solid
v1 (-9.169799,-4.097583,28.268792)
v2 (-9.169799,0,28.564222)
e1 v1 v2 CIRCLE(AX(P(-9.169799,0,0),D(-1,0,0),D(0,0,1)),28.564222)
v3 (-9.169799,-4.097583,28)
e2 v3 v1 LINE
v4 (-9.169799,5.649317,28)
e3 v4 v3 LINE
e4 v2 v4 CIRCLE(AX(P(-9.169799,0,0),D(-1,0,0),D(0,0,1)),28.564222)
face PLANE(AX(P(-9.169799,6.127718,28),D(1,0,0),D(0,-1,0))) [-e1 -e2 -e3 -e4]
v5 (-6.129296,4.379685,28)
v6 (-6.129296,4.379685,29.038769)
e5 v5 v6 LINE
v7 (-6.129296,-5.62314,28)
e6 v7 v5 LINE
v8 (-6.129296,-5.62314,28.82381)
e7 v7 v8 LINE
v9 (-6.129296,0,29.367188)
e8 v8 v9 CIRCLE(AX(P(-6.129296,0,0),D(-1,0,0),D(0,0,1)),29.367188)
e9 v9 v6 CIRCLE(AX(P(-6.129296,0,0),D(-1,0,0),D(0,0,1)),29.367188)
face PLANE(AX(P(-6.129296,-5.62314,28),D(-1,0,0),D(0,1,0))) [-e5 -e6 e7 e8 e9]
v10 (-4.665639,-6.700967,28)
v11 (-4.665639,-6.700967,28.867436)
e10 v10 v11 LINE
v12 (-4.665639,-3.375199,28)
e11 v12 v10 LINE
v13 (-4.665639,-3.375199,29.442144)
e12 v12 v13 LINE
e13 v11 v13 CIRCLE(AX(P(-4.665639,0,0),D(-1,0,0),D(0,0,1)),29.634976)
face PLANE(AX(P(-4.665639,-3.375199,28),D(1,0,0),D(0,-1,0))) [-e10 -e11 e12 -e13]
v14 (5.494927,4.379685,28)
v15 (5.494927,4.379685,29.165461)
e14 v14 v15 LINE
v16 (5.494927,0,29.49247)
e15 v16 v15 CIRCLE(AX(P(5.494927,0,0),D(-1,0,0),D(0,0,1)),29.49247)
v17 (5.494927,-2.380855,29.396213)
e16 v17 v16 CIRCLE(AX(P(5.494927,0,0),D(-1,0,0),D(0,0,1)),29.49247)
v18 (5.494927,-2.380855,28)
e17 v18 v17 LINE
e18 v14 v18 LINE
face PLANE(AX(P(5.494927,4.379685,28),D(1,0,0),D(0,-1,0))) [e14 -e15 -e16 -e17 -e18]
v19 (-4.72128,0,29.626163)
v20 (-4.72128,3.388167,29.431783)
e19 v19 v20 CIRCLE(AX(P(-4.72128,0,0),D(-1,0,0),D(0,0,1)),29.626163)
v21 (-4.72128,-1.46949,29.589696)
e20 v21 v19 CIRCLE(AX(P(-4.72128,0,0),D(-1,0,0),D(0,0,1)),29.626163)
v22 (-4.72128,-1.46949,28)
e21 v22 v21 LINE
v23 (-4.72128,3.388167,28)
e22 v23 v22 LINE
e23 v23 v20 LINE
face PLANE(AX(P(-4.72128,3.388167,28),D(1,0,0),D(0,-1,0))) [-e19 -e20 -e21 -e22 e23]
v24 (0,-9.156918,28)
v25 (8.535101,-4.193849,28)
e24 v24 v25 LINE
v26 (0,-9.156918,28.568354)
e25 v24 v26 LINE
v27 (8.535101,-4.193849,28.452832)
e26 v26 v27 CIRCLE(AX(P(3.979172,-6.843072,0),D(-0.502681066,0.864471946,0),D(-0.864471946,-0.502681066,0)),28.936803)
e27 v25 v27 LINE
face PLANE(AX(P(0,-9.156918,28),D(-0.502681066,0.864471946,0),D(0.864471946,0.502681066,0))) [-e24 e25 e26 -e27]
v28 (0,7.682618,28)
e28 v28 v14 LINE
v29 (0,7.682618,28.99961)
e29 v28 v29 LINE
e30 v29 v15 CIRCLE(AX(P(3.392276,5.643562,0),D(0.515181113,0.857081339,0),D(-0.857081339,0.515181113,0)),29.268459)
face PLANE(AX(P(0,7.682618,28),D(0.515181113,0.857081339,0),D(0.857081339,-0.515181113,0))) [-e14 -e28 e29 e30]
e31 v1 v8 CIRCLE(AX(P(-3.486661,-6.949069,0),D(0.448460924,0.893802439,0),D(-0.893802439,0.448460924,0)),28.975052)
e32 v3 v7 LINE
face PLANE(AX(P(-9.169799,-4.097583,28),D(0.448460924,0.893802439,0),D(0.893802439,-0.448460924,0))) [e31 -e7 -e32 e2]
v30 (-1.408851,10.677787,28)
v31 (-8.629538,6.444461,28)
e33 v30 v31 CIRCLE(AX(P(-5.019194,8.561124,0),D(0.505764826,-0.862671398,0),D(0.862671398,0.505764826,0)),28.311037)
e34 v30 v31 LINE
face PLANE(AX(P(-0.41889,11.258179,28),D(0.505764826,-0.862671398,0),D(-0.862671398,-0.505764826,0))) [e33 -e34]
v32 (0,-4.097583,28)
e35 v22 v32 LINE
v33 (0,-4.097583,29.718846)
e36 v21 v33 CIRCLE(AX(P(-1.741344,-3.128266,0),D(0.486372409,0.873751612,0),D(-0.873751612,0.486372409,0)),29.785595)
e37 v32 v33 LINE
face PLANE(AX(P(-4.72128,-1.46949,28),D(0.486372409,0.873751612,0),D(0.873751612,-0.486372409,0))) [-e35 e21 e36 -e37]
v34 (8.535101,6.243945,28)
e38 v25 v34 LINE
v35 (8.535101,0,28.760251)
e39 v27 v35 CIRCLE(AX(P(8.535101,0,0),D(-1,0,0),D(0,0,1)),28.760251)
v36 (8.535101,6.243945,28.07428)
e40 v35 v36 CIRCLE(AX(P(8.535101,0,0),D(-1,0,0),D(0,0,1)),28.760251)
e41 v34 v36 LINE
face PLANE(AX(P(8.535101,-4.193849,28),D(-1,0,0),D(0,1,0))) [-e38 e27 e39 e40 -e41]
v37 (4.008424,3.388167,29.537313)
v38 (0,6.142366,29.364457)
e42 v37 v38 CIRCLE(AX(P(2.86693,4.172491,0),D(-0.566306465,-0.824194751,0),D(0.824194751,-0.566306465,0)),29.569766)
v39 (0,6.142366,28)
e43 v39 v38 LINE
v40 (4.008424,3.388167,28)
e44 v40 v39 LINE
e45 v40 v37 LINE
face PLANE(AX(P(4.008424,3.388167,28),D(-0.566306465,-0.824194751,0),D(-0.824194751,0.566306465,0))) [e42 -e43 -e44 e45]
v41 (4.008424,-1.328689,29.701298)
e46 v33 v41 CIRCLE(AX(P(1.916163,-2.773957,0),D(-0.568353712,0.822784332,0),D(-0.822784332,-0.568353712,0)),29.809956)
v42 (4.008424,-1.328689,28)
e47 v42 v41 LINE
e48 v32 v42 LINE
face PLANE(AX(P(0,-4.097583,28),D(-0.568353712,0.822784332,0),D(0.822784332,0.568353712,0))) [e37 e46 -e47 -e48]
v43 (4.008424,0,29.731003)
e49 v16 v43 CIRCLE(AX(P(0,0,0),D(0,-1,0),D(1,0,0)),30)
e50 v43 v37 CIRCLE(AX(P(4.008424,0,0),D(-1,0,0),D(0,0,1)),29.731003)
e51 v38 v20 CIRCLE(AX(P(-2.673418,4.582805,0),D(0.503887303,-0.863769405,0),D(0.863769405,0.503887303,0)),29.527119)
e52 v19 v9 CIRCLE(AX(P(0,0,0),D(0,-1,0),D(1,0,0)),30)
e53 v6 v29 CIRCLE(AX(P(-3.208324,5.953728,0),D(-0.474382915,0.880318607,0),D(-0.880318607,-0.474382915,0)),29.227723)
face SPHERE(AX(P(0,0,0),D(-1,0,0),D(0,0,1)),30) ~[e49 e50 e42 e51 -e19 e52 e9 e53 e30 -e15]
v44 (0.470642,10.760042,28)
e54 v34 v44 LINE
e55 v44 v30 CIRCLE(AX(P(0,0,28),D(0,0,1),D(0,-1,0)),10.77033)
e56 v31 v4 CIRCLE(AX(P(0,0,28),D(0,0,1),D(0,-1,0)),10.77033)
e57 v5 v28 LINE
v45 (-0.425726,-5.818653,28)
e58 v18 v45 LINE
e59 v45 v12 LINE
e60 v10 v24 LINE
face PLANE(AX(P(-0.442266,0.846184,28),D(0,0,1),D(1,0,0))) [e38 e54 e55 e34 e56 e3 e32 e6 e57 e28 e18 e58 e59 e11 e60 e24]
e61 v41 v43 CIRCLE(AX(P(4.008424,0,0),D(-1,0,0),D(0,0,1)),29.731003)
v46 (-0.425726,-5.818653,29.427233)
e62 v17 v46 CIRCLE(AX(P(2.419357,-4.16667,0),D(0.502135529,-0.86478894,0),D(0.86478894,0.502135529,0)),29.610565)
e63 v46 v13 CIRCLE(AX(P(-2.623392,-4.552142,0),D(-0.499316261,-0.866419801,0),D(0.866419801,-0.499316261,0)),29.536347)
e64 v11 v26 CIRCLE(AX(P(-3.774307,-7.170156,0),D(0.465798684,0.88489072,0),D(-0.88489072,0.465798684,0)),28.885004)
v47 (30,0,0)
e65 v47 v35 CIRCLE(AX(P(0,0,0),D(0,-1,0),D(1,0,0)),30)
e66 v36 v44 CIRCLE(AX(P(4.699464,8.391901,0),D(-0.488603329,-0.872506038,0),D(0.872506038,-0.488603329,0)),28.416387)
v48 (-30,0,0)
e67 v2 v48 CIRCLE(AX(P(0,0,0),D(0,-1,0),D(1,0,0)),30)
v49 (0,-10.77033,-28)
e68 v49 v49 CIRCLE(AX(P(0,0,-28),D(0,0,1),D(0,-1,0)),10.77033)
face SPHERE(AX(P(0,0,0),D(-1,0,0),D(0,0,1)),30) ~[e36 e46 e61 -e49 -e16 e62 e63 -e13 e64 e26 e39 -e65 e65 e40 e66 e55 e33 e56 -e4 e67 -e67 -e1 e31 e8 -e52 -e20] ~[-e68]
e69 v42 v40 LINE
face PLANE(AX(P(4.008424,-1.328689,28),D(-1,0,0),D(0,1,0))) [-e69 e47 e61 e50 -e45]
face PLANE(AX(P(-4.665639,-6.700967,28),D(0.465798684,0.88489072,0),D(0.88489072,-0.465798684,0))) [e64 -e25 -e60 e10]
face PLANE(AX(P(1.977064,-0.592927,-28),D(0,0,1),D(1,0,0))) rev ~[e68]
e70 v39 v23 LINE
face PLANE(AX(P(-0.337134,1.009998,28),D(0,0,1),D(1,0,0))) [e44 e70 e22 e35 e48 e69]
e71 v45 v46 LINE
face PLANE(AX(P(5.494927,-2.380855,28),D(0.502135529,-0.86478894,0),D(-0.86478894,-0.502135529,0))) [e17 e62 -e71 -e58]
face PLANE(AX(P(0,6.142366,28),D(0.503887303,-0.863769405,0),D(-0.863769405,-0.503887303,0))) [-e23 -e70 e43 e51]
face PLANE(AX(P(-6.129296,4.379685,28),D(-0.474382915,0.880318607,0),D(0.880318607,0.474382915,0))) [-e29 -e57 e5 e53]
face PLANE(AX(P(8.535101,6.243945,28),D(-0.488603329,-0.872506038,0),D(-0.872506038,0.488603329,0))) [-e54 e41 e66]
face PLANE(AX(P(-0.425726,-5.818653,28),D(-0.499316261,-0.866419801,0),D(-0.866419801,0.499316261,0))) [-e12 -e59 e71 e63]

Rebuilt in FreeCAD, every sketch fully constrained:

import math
import FreeCAD as App
import Part
import Sketcher
Q = App.Units.Quantity

doc = App.newDocument("Part")
body = doc.addObject("PartDesign::Body", "Body")

sketch1 = doc.addObject("Sketcher::SketchObject", "Sketch")
body.addObject(sketch1)
sketch1.AttachmentSupport = (doc.XZ_Plane, [""])
sketch1.MapMode = "FlatFace"
sketch1.addGeometry([
    Part.LineSegment(App.Vector(-30, 0, 0), App.Vector(30, 0, 0)),
    Part.ArcOfCircle(Part.Circle(App.Vector(0, 0, 0), App.Vector(0, 0, 1), 30), math.radians(0), math.radians(180)),
], False)
sketch1.addConstraint([
    Sketcher.Constraint("Coincident", 0, 1, 1, 2),
    Sketcher.Constraint("Coincident", 1, 1, 0, 2),
    Sketcher.Constraint("Horizontal", 0),
    Sketcher.Constraint("Coincident", 1, 3, -1, 1),
    Sketcher.Constraint("PointOnObject", 0, 1, -1),
    Sketcher.Constraint("Radius", 1, Q("30 mm")),
])
revolution = doc.addObject("PartDesign::Revolution", "Revolution")
body.addObject(revolution)
revolution.Profile = sketch1
revolution.ReferenceAxis = (sketch1, ["H_Axis"])
revolution.Angle = 360

sketch2 = doc.addObject("Sketcher::SketchObject", "Sketch001")
body.addObject(sketch2)
sketch2.AttachmentSupport = (doc.XY_Plane, [""])
sketch2.MapMode = "FlatFace"
sketch2.AttachmentOffset = App.Placement(App.Vector(0, 0, 28), App.Rotation())
sketch2.addGeometry([
    Part.LineSegment(App.Vector(-9.2, 6.1, 0), App.Vector(-9.2, -4.1, 0)),
    Part.LineSegment(App.Vector(-9.2, -4.1, 0), App.Vector(-6.1, -5.6, 0)),
    Part.LineSegment(App.Vector(-6.1, -5.6, 0), App.Vector(-6.1, 4.4, 0)),
    Part.LineSegment(App.Vector(-6.1, 4.4, 0), App.Vector(0, 7.7, 0)),
    Part.LineSegment(App.Vector(0, 7.7, 0), App.Vector(5.5, 4.4, 0)),
    Part.LineSegment(App.Vector(5.5, 4.4, 0), App.Vector(5.5, -2.4, 0)),
    Part.LineSegment(App.Vector(5.5, -2.4, 0), App.Vector(-0.4, -5.8, 0)),
    Part.LineSegment(App.Vector(-0.4, -5.8, 0), App.Vector(-4.7, -3.4, 0)),
    Part.LineSegment(App.Vector(-4.7, -3.4, 0), App.Vector(-4.7, -6.7, 0)),
    Part.LineSegment(App.Vector(-4.7, -6.7, 0), App.Vector(0, -9.2, 0)),
    Part.LineSegment(App.Vector(0, -9.2, 0), App.Vector(8.5, -4.2, 0)),
    Part.LineSegment(App.Vector(8.5, -4.2, 0), App.Vector(8.5, 6.2, 0)),
    Part.LineSegment(App.Vector(8.5, 6.2, 0), App.Vector(-0.4, 11.3, 0)),
    Part.LineSegment(App.Vector(-0.4, 11.3, 0), App.Vector(-9.2, 6.1, 0)),
    Part.LineSegment(App.Vector(-4.7, 3.4, 0), App.Vector(-4.7, -1.5, 0)),
    Part.LineSegment(App.Vector(-4.7, -1.5, 0), App.Vector(0, -4.1, 0)),
    Part.LineSegment(App.Vector(0, -4.1, 0), App.Vector(4, -1.3, 0)),
    Part.LineSegment(App.Vector(4, -1.3, 0), App.Vector(4, 3.4, 0)),
    Part.LineSegment(App.Vector(4, 3.4, 0), App.Vector(0, 6.1, 0)),
    Part.LineSegment(App.Vector(0, 6.1, 0), App.Vector(-4.7, 3.4, 0)),
], False)
sketch2.addConstraint([
    Sketcher.Constraint("Coincident", 0, 2, 1, 1),
    Sketcher.Constraint("Coincident", 1, 2, 2, 1),
    Sketcher.Constraint("Coincident", 2, 2, 3, 1),
    Sketcher.Constraint("Coincident", 3, 2, 4, 1),
    Sketcher.Constraint("Coincident", 4, 2, 5, 1),
    Sketcher.Constraint("Coincident", 5, 2, 6, 1),
    Sketcher.Constraint("Coincident", 6, 2, 7, 1),
    Sketcher.Constraint("Coincident", 7, 2, 8, 1),
    Sketcher.Constraint("Coincident", 8, 2, 9, 1),
    Sketcher.Constraint("Coincident", 9, 2, 10, 1),
    Sketcher.Constraint("Coincident", 10, 2, 11, 1),
    Sketcher.Constraint("Coincident", 11, 2, 12, 1),
    Sketcher.Constraint("Coincident", 12, 2, 13, 1),
    Sketcher.Constraint("Coincident", 13, 2, 0, 1),
    Sketcher.Constraint("Coincident", 14, 2, 15, 1),
    Sketcher.Constraint("Coincident", 15, 2, 16, 1),
    Sketcher.Constraint("Coincident", 16, 2, 17, 1),
    Sketcher.Constraint("Coincident", 17, 2, 18, 1),
    Sketcher.Constraint("Coincident", 18, 2, 19, 1),
    Sketcher.Constraint("Coincident", 19, 2, 14, 1),
    Sketcher.Constraint("Vertical", 0),
    Sketcher.Constraint("Vertical", 2),
    Sketcher.Constraint("Vertical", 5),
    Sketcher.Constraint("Vertical", 8),
    Sketcher.Constraint("Vertical", 11),
    Sketcher.Constraint("Vertical", 14),
    Sketcher.Constraint("Vertical", 17),
    Sketcher.Constraint("PointOnObject", 3, 2, -2),
    Sketcher.Constraint("PointOnObject", 9, 2, -2),
    Sketcher.Constraint("PointOnObject", 15, 2, -2),
    Sketcher.Constraint("PointOnObject", 18, 2, -2),
    Sketcher.Constraint("Horizontal", 2, 2, 4, 2),
    Sketcher.Constraint("Horizontal", 0, 2, 15, 2),
    Sketcher.Constraint("Horizontal", 17, 2, 19, 2),
    Sketcher.Constraint("DistanceY", 0, 2, 0, 1, Q("10.225301 mm")),
    Sketcher.Constraint("Distance", 7, Q("4.893601 mm")),
    Sketcher.Constraint("DistanceY", 5, 2, 5, 1, Q("6.76054 mm")),
    Sketcher.Constraint("DistanceY", 8, 2, 8, 1, Q("3.325768 mm")),
    Sketcher.Constraint("DistanceX", 0, 2, -1, 1, Q("9.169799 mm")),
    Sketcher.Constraint("DistanceY", 7, 2, -1, 1, Q("3.375199 mm")),
    Sketcher.Constraint("DistanceX", -1, 1, 10, 2, Q("8.535101 mm")),
    Sketcher.Constraint("DistanceY", 0, 2, 3, 2, Q("11.780201 mm")),
    Sketcher.Constraint("DistanceY", 6, 2, 5, 2, Q("3.437798 mm")),
    Sketcher.Constraint("DistanceY", 5, 2, 11, 2, Q("8.6248 mm")),
    Sketcher.Constraint("DistanceY", 17, 2, 18, 2, Q("2.754199 mm")),
    Sketcher.Constraint("Distance", 1, Q("3.401762 mm")),
    Sketcher.Constraint("Distance", 3, Q("6.962589 mm")),
    Sketcher.Constraint("Distance", 9, Q("5.272559 mm")),
    Sketcher.Constraint("Distance", 16, Q("4.87178 mm")),
    Sketcher.Constraint("DistanceY", 2, 1, 2, 2, Q("10.002825 mm")),
    Sketcher.Constraint("DistanceY", 11, 1, 11, 2, Q("10.437794 mm")),
    Sketcher.Constraint("DistanceY", 14, 2, 14, 1, Q("4.857657 mm")),
    Sketcher.Constraint("DistanceY", 17, 1, 17, 2, Q("4.716856 mm")),
    Sketcher.Constraint("DistanceY", 1, 2, -1, 1, Q("5.62314 mm")),
    Sketcher.Constraint("DistanceX", 7, 2, -1, 1, Q("4.665639 mm")),
    Sketcher.Constraint("DistanceX", 12, 2, -1, 1, Q("0.41889 mm")),
    Sketcher.Constraint("DistanceY", -1, 1, 12, 2, Q("11.258179 mm")),
    Sketcher.Constraint("DistanceX", 14, 2, -1, 1, Q("4.72128 mm")),
    Sketcher.Constraint("DistanceY", 14, 2, -1, 1, Q("1.46949 mm")),
    Sketcher.Constraint("Distance", 4, Q("6.411208 mm")),
])
pocket1 = doc.addObject("PartDesign::Pocket", "Pocket")
body.addObject(pocket1)
pocket1.Profile = sketch2
pocket1.Length = 22
pocket1.Reversed = True

sketch3 = doc.addObject("Sketcher::SketchObject", "Sketch002")
body.addObject(sketch3)
sketch3.AttachmentSupport = (doc.XY_Plane, [""])
sketch3.MapMode = "FlatFace"
sketch3.AttachmentOffset = App.Placement(App.Vector(0, 0, -28), App.Rotation())
sketch3.addGeometry([
    Part.LineSegment(App.Vector(-28, 29, 0), App.Vector(-28, -31, 0)),
    Part.LineSegment(App.Vector(-28, -31, 0), App.Vector(32, -31, 0)),
    Part.LineSegment(App.Vector(32, -31, 0), App.Vector(32, 29, 0)),
    Part.LineSegment(App.Vector(32, 29, 0), App.Vector(-28, 29, 0)),
], False)
sketch3.addConstraint([
    Sketcher.Constraint("Coincident", 0, 2, 1, 1),
    Sketcher.Constraint("Coincident", 1, 2, 2, 1),
    Sketcher.Constraint("Coincident", 2, 2, 3, 1),
    Sketcher.Constraint("Coincident", 3, 2, 0, 1),
    Sketcher.Constraint("Vertical", 0),
    Sketcher.Constraint("Horizontal", 1),
    Sketcher.Constraint("Vertical", 2),
    Sketcher.Constraint("Horizontal", 3),
    Sketcher.Constraint("Equal", 3, 0),
    Sketcher.Constraint("DistanceX", 1, 1, 1, 2, Q("60 mm")),
    Sketcher.Constraint("DistanceX", 0, 2, -1, 1, Q("28.022936 mm")),
    Sketcher.Constraint("DistanceY", 0, 2, -1, 1, Q("30.592927 mm")),
])
pocket2 = doc.addObject("PartDesign::Pocket", "Pocket001")
body.addObject(pocket2)
pocket2.Profile = sketch3
pocket2.Length = 72

doc.recompute()
